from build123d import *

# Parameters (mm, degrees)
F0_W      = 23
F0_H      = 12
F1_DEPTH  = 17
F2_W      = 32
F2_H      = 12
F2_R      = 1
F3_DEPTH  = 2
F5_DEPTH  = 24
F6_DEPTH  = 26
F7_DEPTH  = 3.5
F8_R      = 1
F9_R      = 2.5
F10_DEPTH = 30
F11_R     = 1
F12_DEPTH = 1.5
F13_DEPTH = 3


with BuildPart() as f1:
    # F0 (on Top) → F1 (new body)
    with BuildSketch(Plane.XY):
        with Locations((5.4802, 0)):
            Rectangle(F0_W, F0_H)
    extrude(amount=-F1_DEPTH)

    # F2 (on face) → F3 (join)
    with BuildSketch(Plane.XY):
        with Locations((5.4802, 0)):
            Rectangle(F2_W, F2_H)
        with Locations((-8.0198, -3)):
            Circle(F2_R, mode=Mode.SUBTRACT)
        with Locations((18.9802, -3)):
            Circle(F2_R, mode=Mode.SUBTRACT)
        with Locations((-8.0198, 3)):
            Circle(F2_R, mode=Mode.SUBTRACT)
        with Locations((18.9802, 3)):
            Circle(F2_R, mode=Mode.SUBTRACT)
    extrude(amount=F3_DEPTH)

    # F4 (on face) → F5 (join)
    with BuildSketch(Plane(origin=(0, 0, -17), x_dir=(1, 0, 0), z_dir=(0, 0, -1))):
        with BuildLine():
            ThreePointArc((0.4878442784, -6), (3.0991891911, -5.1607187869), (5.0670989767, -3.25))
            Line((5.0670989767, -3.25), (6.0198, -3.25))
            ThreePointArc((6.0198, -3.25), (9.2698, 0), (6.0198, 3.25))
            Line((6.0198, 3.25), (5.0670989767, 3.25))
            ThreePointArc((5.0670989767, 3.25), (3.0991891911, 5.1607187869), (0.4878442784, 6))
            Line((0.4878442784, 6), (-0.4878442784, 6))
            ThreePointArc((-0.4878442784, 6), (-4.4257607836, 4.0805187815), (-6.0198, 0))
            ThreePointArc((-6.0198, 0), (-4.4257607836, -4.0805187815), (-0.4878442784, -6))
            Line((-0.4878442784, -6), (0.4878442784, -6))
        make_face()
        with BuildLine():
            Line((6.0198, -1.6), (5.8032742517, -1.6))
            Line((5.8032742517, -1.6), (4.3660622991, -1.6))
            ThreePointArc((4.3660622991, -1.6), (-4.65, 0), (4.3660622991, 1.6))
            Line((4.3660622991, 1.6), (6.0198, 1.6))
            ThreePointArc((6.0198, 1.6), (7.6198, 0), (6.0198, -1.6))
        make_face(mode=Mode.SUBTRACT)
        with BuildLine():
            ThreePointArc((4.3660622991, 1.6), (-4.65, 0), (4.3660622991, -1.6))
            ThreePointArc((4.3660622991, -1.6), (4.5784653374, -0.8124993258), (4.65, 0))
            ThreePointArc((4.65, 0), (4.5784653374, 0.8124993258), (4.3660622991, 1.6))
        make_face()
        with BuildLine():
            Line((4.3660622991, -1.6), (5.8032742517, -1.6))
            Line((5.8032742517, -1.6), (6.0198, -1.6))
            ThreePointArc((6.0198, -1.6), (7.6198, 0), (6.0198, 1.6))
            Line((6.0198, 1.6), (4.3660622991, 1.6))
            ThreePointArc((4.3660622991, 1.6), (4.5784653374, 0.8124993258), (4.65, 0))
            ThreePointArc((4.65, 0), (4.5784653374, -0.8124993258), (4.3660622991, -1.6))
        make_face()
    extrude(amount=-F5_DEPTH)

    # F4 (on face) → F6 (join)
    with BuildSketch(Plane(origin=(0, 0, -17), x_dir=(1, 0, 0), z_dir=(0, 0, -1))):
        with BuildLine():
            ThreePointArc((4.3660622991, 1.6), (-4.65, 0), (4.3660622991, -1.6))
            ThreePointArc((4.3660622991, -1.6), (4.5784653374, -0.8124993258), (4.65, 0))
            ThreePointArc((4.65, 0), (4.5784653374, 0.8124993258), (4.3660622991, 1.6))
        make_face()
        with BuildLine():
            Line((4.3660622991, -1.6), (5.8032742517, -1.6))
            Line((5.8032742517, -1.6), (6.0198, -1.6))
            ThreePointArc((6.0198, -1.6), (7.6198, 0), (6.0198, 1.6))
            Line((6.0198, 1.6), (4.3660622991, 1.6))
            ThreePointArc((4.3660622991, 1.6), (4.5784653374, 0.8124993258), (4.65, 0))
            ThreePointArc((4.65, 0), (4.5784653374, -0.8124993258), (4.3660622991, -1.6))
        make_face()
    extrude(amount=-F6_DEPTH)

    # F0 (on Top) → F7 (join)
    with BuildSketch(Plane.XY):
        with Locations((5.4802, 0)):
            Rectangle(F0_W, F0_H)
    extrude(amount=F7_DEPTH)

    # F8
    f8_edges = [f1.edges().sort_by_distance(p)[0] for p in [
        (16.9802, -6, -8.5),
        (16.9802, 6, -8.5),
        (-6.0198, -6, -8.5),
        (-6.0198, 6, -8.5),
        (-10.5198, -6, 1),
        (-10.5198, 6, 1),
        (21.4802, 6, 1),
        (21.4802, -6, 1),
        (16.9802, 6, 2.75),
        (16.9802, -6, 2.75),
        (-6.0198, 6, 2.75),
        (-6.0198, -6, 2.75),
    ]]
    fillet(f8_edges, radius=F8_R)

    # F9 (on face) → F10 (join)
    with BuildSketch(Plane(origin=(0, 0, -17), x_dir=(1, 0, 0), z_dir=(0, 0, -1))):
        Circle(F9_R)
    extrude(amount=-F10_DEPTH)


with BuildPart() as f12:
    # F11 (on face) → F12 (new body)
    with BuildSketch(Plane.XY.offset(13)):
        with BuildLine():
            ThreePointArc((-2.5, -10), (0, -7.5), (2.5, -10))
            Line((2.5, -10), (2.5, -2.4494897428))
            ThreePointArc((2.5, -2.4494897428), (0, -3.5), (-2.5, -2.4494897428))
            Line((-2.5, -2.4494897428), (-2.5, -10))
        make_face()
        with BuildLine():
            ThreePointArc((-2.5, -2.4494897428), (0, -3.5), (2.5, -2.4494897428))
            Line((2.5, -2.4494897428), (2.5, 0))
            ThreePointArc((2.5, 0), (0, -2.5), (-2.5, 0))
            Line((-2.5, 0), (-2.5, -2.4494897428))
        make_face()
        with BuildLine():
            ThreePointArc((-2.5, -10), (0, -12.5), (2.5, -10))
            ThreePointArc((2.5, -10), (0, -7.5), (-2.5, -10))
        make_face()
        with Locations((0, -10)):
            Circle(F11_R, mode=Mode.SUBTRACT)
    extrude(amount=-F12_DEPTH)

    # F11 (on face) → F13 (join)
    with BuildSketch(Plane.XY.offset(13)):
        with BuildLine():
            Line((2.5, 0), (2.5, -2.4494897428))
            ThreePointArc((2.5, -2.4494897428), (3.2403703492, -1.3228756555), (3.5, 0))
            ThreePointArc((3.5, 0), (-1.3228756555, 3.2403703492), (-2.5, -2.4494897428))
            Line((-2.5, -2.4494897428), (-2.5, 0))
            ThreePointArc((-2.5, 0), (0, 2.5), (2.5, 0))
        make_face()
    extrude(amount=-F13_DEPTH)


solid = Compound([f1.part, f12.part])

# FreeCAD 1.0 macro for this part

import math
import FreeCAD as App
import Part
import Sketcher


def edges_at(feature, points):
    """Names of the edges that pass closest to the given points."""
    edges = feature.Shape.Edges
    near = lambda p: min(range(len(edges)), key=lambda i: edges[i].distToShape(Part.Vertex(*p))[0])
    return sorted({f"Edge{near(p) + 1}" for p in points})


def add_polygon(sketch, points):
    """Adds a closed chain of lines whose ends are joined by coincident constraints."""
    first, n = sketch.GeometryCount, len(points)
    for a, b in zip(points, points[1:] + points[:1]):
        sketch.addGeometry(Part.LineSegment(App.Vector(*a, 0), App.Vector(*b, 0)), False)
    for i in range(n):
        sketch.addConstraint(Sketcher.Constraint("Coincident", first + i, 2, first + (i + 1) % n, 1))

doc = App.newDocument("Part")
body = doc.addObject("PartDesign::Body", "Body")

# Sketch on XY plane
sketch1 = doc.addObject("Sketcher::SketchObject", "Sketch")
body.addObject(sketch1)
sketch1.AttachmentSupport = (doc.XY_Plane, [""])
sketch1.MapMode = "FlatFace"
add_polygon(sketch1, [(-6.0198, 6), (-6.0198, -6), (16.9802, -6), (16.9802, 6)])  # lines 0-3
sketch1.addConstraint(Sketcher.Constraint("Vertical", 0))
sketch1.addConstraint(Sketcher.Constraint("Horizontal", 1))
sketch1.addConstraint(Sketcher.Constraint("Vertical", 2))
sketch1.addConstraint(Sketcher.Constraint("Horizontal", 3))
sketch1.addConstraint(Sketcher.Constraint("DistanceX", 1, 1, 1, 2, 23.0))
sketch1.addConstraint(Sketcher.Constraint("DistanceY", 0, 2, 0, 1, 12.0))
sketch1.addConstraint(Sketcher.Constraint("DistanceY", 0, 2, -1, 1, 6.0))
sketch1.addConstraint(Sketcher.Constraint("DistanceX", 0, 2, -1, 1, 6.0198))
pad1 = doc.addObject("PartDesign::Pad", "Pad")
body.addObject(pad1)
pad1.Profile = sketch1
pad1.Length = 17
pad1.Reversed = True

# Sketch on XY plane
sketch2 = doc.addObject("Sketcher::SketchObject", "Sketch001")
body.addObject(sketch2)
sketch2.AttachmentSupport = (doc.XY_Plane, [""])
sketch2.MapMode = "FlatFace"
add_polygon(sketch2, [(-10.5198, 6), (-10.5198, -6), (21.4802, -6), (21.4802, 6)])  # lines 0-3
sketch2.addGeometry(Part.Circle(App.Vector(-8.0198, -3, 0), App.Vector(0, 0, 1), 1), False)  # 4
sketch2.addGeometry(Part.Circle(App.Vector(18.9802, -3, 0), App.Vector(0, 0, 1), 1), False)  # 5
sketch2.addGeometry(Part.Circle(App.Vector(-8.0198, 3, 0), App.Vector(0, 0, 1), 1), False)  # 6
sketch2.addGeometry(Part.Circle(App.Vector(18.9802, 3, 0), App.Vector(0, 0, 1), 1), False)  # 7
sketch2.addConstraint(Sketcher.Constraint("Vertical", 0))
sketch2.addConstraint(Sketcher.Constraint("Horizontal", 1))
sketch2.addConstraint(Sketcher.Constraint("Vertical", 2))
sketch2.addConstraint(Sketcher.Constraint("Horizontal", 3))
sketch2.addConstraint(Sketcher.Constraint("Equal", 4, 5))
sketch2.addConstraint(Sketcher.Constraint("Equal", 5, 6))
sketch2.addConstraint(Sketcher.Constraint("Equal", 6, 7))
sketch2.addConstraint(Sketcher.Constraint("Symmetric", 4, 3, 6, 3, -1))
sketch2.addConstraint(Sketcher.Constraint("Symmetric", 5, 3, 7, 3, -1))
sketch2.addConstraint(Sketcher.Constraint("Horizontal", 4, 3, 5, 3))
sketch2.addConstraint(Sketcher.Constraint("Diameter", 4, 2.0))
sketch2.addConstraint(Sketcher.Constraint("DistanceX", 1, 1, 1, 2, 32.0))
sketch2.addConstraint(Sketcher.Constraint("DistanceY", 0, 2, 0, 1, 12.0))
sketch2.addConstraint(Sketcher.Constraint("DistanceY", 4, 3, -1, 1, 3.0))
sketch2.addConstraint(Sketcher.Constraint("DistanceY", 0, 2, -1, 1, 6.0))
sketch2.addConstraint(Sketcher.Constraint("DistanceX", 4, 3, 5, 3, 27.0))
sketch2.addConstraint(Sketcher.Constraint("DistanceX", 0, 2, 4, 3, 2.5))
sketch2.addConstraint(Sketcher.Constraint("DistanceX", 4, 3, -1, 1, 8.0198))
pad2 = doc.addObject("PartDesign::Pad", "Pad001")
body.addObject(pad2)
pad2.Profile = sketch2
pad2.Length = 2

# Sketch on XY plane
sketch3 = doc.addObject("Sketcher::SketchObject", "Sketch002")
body.addObject(sketch3)
sketch3.AttachmentSupport = (doc.XY_Plane, [""])
sketch3.MapMode = "FlatFace"
sketch3.AttachmentOffset = App.Placement(App.Vector(0, 0, -17), App.Rotation())
sketch3.addGeometry(Part.ArcOfCircle(Part.Circle(App.Vector(0, 0, 0), App.Vector(0, 0, 1), 6.0198), math.radians(32.675814), math.radians(85.351656)), False)
sketch3.addGeometry(Part.LineSegment(App.Vector(5.067099, 3.25, 0), App.Vector(6.0198, 3.25, 0)), False)
sketch3.addGeometry(Part.ArcOfCircle(Part.Circle(App.Vector(6.0198, 0, 0), App.Vector(0, 0, 1), 3.25), math.radians(-90), math.radians(90)), False)
sketch3.addGeometry(Part.LineSegment(App.Vector(6.0198, -3.25, 0), App.Vector(5.067099, -3.25, 0)), False)
sketch3.addGeometry(Part.ArcOfCircle(Part.Circle(App.Vector(0, 0, 0), App.Vector(0, 0, 1), 6.0198), math.radians(-85.351656), math.radians(-32.675814)), False)
sketch3.addGeometry(Part.LineSegment(App.Vector(0.487844, -6, 0), App.Vector(-0.487844, -6, 0)), False)
sketch3.addGeometry(Part.ArcOfCircle(Part.Circle(App.Vector(0, 0, 0), App.Vector(0, 0, 1), 6.0198), math.radians(180), math.radians(265.351656)), False)
sketch3.addGeometry(Part.ArcOfCircle(Part.Circle(App.Vector(0, 0, 0), App.Vector(0, 0, 1), 6.0198), math.radians(94.648344), math.radians(180)), False)
sketch3.addGeometry(Part.LineSegment(App.Vector(-0.487844, 6, 0), App.Vector(0.487844, 6, 0)), False)
sketch3.addConstraint(Sketcher.Constraint("Coincident", 0, 1, 1, 1))
sketch3.addConstraint(Sketcher.Constraint("Tangent", 1, 2, 2, 2))
sketch3.addConstraint(Sketcher.Constraint("Tangent", 2, 1, 3, 1))
sketch3.addConstraint(Sketcher.Constraint("Coincident", 3, 2, 4, 2))
sketch3.addConstraint(Sketcher.Constraint("Coincident", 4, 1, 5, 1))
sketch3.addConstraint(Sketcher.Constraint("Coincident", 5, 2, 6, 2))
sketch3.addConstraint(Sketcher.Constraint("Tangent", 6, 1, 7, 2))
sketch3.addConstraint(Sketcher.Constraint("Coincident", 7, 1, 8, 1))
sketch3.addConstraint(Sketcher.Constraint("Coincident", 8, 2, 0, 2))
sketch3.addConstraint(Sketcher.Constraint("Horizontal", 1))
sketch3.addConstraint(Sketcher.Constraint("Horizontal", 3))
sketch3.addConstraint(Sketcher.Constraint("Horizontal", 5))
sketch3.addConstraint(Sketcher.Constraint("Horizontal", 8))
sketch3.addConstraint(Sketcher.Constraint("Coincident", 0, 3, -1, 1))
sketch3.addConstraint(Sketcher.Constraint("Coincident", 4, 3, -1, 1))
sketch3.addConstraint(Sketcher.Constraint("Coincident", 6, 3, -1, 1))
sketch3.addConstraint(Sketcher.Constraint("Equal", 0, 4))
sketch3.addConstraint(Sketcher.Constraint("Equal", 4, 6))
sketch3.addConstraint(Sketcher.Constraint("Equal", 6, 7))
sketch3.addConstraint(Sketcher.Constraint("PointOnObject", 2, 3, -1))
sketch3.addConstraint(Sketcher.Constraint("PointOnObject", 6, 1, -1))
sketch3.addConstraint(Sketcher.Constraint("Vertical", 5, 2, 7, 1))
sketch3.addConstraint(Sketcher.Constraint("Radius", 2, 3.25))
sketch3.addConstraint(Sketcher.Constraint("DistanceY", 4, 1, -1, 1, 6.0))
sketch3.addConstraint(Sketcher.Constraint("Radius", 0, 6.0198))
sketch3.addConstraint(Sketcher.Constraint("DistanceX", 1, 1, 1, 2, 0.952701))
pad3 = doc.addObject("PartDesign::Pad", "Pad002")
body.addObject(pad3)
pad3.Profile = sketch3
pad3.Length = 24

# Sketch on XY plane
sketch4 = doc.addObject("Sketcher::SketchObject", "Sketch003")
body.addObject(sketch4)
sketch4.AttachmentSupport = (doc.XY_Plane, [""])
sketch4.MapMode = "FlatFace"
sketch4.AttachmentOffset = App.Placement(App.Vector(0, 0, -17), App.Rotation())
sketch4.addGeometry(Part.ArcOfCircle(Part.Circle(App.Vector(0, 0, 0), App.Vector(0, 0, 1), 4.65), math.radians(20.126013), math.radians(339.873987)), False)
sketch4.addGeometry(Part.LineSegment(App.Vector(4.366062, 1.6, 0), App.Vector(6.0198, 1.6, 0)), False)
sketch4.addGeometry(Part.ArcOfCircle(Part.Circle(App.Vector(6.0198, 0, 0), App.Vector(0, 0, 1), 1.6), math.radians(-90), math.radians(90)), False)
sketch4.addGeometry(Part.LineSegment(App.Vector(6.0198, -1.6, 0), App.Vector(4.366062, -1.6, 0)), False)
sketch4.addConstraint(Sketcher.Constraint("Coincident", 0, 1, 1, 1))
sketch4.addConstraint(Sketcher.Constraint("Tangent", 1, 2, 2, 2))
sketch4.addConstraint(Sketcher.Constraint("Tangent", 2, 1, 3, 1))
sketch4.addConstraint(Sketcher.Constraint("Coincident", 3, 2, 0, 2))
sketch4.addConstraint(Sketcher.Constraint("Horizontal", 1))
sketch4.addConstraint(Sketcher.Constraint("Horizontal", 3))
sketch4.addConstraint(Sketcher.Constraint("Coincident", 0, 3, -1, 1))
sketch4.addConstraint(Sketcher.Constraint("PointOnObject", 2, 3, -1))
sketch4.addConstraint(Sketcher.Constraint("Radius", 2, 1.6))
sketch4.addConstraint(Sketcher.Constraint("Radius", 0, 4.65))
sketch4.addConstraint(Sketcher.Constraint("DistanceX", -1, 1, 2, 3, 6.0198))
pad4 = doc.addObject("PartDesign::Pad", "Pad003")
body.addObject(pad4)
pad4.Profile = sketch4
pad4.Length = 26

# Sketch on XY plane
sketch5 = doc.addObject("Sketcher::SketchObject", "Sketch004")
body.addObject(sketch5)
sketch5.AttachmentSupport = (doc.XY_Plane, [""])
sketch5.MapMode = "FlatFace"
add_polygon(sketch5, [(-6.0198, 6), (-6.0198, -6), (16.9802, -6), (16.9802, 6)])  # lines 0-3
sketch5.addConstraint(Sketcher.Constraint("Vertical", 0))
sketch5.addConstraint(Sketcher.Constraint("Horizontal", 1))
sketch5.addConstraint(Sketcher.Constraint("Vertical", 2))
sketch5.addConstraint(Sketcher.Constraint("Horizontal", 3))
sketch5.addConstraint(Sketcher.Constraint("DistanceX", 1, 1, 1, 2, 23.0))
sketch5.addConstraint(Sketcher.Constraint("DistanceY", 0, 2, 0, 1, 12.0))
sketch5.addConstraint(Sketcher.Constraint("DistanceY", 0, 2, -1, 1, 6.0))
sketch5.addConstraint(Sketcher.Constraint("DistanceX", 0, 2, -1, 1, 6.0198))
pad5 = doc.addObject("PartDesign::Pad", "Pad004")
body.addObject(pad5)
pad5.Profile = sketch5
pad5.Length = 3.5
doc.recompute()

fillet = doc.addObject("PartDesign::Fillet", "Fillet")
body.addObject(fillet)
fillet.Base = (pad5, edges_at(pad5, [
    (16.98, -6, -8.5),
    (16.98, 6, -8.5),
    (-6.02, -6, -8.5),
    (-6.02, 6, -8.5),
    (-10.52, -6, 1),
    (-10.52, 6, 1),
    (21.48, 6, 1),
    (21.48, -6, 1),
    (16.98, 6, 2.75),
    (16.98, -6, 2.75),
    (-6.02, 6, 2.75),
    (-6.02, -6, 2.75),
]))
fillet.Radius = 1

# Sketch on XY plane
sketch6 = doc.addObject("Sketcher::SketchObject", "Sketch005")
body.addObject(sketch6)
sketch6.AttachmentSupport = (doc.XY_Plane, [""])
sketch6.MapMode = "FlatFace"
sketch6.AttachmentOffset = App.Placement(App.Vector(0, 0, -17), App.Rotation())
sketch6.addGeometry(Part.Circle(App.Vector(0, 0, 0), App.Vector(0, 0, 1), 2.5), False)
sketch6.addConstraint(Sketcher.Constraint("Coincident", 0, 3, -1, 1))
sketch6.addConstraint(Sketcher.Constraint("Diameter", 0, 5.0))
pad6 = doc.addObject("PartDesign::Pad", "Pad005")
body.addObject(pad6)
pad6.Profile = sketch6
pad6.Length = 30
body2 = doc.addObject("PartDesign::Body", "Body001")

# Sketch on XY plane
sketch7 = doc.addObject("Sketcher::SketchObject", "Sketch006")
body2.addObject(sketch7)
sketch7.AttachmentSupport = (doc.getObject("XY_Plane001"), [""])
sketch7.MapMode = "FlatFace"
sketch7.AttachmentOffset = App.Placement(App.Vector(0, 0, 13), App.Rotation())
sketch7.addGeometry(Part.LineSegment(App.Vector(2.5, -10, 0), App.Vector(2.5, 0, 0)), False)
sketch7.addGeometry(Part.ArcOfCircle(Part.Circle(App.Vector(0, 0, 0), App.Vector(0, 0, 1), 2.5), math.radians(180), math.radians(360)), False)
sketch7.addGeometry(Part.LineSegment(App.Vector(-2.5, 0, 0), App.Vector(-2.5, -10, 0)), False)
sketch7.addGeometry(Part.ArcOfCircle(Part.Circle(App.Vector(0, -10, 0), App.Vector(0, 0, 1), 2.5), math.radians(180), math.radians(360)), False)
sketch7.addGeometry(Part.Circle(App.Vector(0, -10, 0), App.Vector(0, 0, 1), 1), False)
sketch7.addConstraint(Sketcher.Constraint("Tangent", 0, 2, 1, 2))
sketch7.addConstraint(Sketcher.Constraint("Tangent", 1, 1, 2, 1))
sketch7.addConstraint(Sketcher.Constraint("Tangent", 2, 2, 3, 1))
sketch7.addConstraint(Sketcher.Constraint("Tangent", 3, 2, 0, 1))
sketch7.addConstraint(Sketcher.Constraint("Vertical", 0))
sketch7.addConstraint(Sketcher.Constraint("Vertical", 2))
sketch7.addConstraint(Sketcher.Constraint("Coincident", 1, 3, -1, 1))
sketch7.addConstraint(Sketcher.Constraint("Coincident", 4, 3, 3, 3))
sketch7.addConstraint(Sketcher.Constraint("Diameter", 4, 2.0))
sketch7.addConstraint(Sketcher.Constraint("Radius", 1, 2.5))
sketch7.addConstraint(Sketcher.Constraint("DistanceY", 0, 1, 0, 2, 10.0))
pad7 = doc.addObject("PartDesign::Pad", "Pad006")
body2.addObject(pad7)
pad7.Profile = sketch7
pad7.Length = 1.5
pad7.Reversed = True

# Sketch on XY plane
sketch8 = doc.addObject("Sketcher::SketchObject", "Sketch007")
body2.addObject(sketch8)
sketch8.AttachmentSupport = (doc.getObject("XY_Plane001"), [""])
sketch8.MapMode = "FlatFace"
sketch8.AttachmentOffset = App.Placement(App.Vector(0, 0, 13), App.Rotation())
sketch8.addGeometry(Part.LineSegment(App.Vector(2.5, 0, 0), App.Vector(2.5, -2.44949, 0)), False)
sketch8.addGeometry(Part.ArcOfCircle(Part.Circle(App.Vector(0, 0, 0), App.Vector(0, 0, 1), 3.5), math.radians(-44.415309), math.radians(0)), False)
sketch8.addGeometry(Part.ArcOfCircle(Part.Circle(App.Vector(0, 0, 0), App.Vector(0, 0, 1), 3.5), math.radians(0), math.radians(224.415309)), False)
sketch8.addGeometry(Part.LineSegment(App.Vector(-2.5, -2.44949, 0), App.Vector(-2.5, 0, 0)), False)
sketch8.addGeometry(Part.ArcOfCircle(Part.Circle(App.Vector(0, 0, 0), App.Vector(0, 0, 1), 2.5), math.radians(0), math.radians(180)), False)
sketch8.addConstraint(Sketcher.Constraint("Coincident", 0, 2, 1, 1))
sketch8.addConstraint(Sketcher.Constraint("Tangent", 1, 2, 2, 1))
sketch8.addConstraint(Sketcher.Constraint("Coincident", 2, 2, 3, 1))
sketch8.addConstraint(Sketcher.Constraint("Tangent", 3, 2, 4, 2))
sketch8.addConstraint(Sketcher.Constraint("Tangent", 4, 1, 0, 1))
sketch8.addConstraint(Sketcher.Constraint("Vertical", 0))
sketch8.addConstraint(Sketcher.Constraint("Vertical", 3))
sketch8.addConstraint(Sketcher.Constraint("Coincident", 1, 3, -1, 1))
sketch8.addConstraint(Sketcher.Constraint("Coincident", 4, 3, -1, 1))
sketch8.addConstraint(Sketcher.Constraint("Equal", 1, 2))
sketch8.addConstraint(Sketcher.Constraint("PointOnObject", 1, 2, -1))
sketch8.addConstraint(Sketcher.Constraint("Radius", 1, 3.5))
sketch8.addConstraint(Sketcher.Constraint("Radius", 4, 2.5))
pad8 = doc.addObject("PartDesign::Pad", "Pad007")
body2.addObject(pad8)
pad8.Profile = sketch8
pad8.Length = 3
pad8.Reversed = True

doc.recompute()
